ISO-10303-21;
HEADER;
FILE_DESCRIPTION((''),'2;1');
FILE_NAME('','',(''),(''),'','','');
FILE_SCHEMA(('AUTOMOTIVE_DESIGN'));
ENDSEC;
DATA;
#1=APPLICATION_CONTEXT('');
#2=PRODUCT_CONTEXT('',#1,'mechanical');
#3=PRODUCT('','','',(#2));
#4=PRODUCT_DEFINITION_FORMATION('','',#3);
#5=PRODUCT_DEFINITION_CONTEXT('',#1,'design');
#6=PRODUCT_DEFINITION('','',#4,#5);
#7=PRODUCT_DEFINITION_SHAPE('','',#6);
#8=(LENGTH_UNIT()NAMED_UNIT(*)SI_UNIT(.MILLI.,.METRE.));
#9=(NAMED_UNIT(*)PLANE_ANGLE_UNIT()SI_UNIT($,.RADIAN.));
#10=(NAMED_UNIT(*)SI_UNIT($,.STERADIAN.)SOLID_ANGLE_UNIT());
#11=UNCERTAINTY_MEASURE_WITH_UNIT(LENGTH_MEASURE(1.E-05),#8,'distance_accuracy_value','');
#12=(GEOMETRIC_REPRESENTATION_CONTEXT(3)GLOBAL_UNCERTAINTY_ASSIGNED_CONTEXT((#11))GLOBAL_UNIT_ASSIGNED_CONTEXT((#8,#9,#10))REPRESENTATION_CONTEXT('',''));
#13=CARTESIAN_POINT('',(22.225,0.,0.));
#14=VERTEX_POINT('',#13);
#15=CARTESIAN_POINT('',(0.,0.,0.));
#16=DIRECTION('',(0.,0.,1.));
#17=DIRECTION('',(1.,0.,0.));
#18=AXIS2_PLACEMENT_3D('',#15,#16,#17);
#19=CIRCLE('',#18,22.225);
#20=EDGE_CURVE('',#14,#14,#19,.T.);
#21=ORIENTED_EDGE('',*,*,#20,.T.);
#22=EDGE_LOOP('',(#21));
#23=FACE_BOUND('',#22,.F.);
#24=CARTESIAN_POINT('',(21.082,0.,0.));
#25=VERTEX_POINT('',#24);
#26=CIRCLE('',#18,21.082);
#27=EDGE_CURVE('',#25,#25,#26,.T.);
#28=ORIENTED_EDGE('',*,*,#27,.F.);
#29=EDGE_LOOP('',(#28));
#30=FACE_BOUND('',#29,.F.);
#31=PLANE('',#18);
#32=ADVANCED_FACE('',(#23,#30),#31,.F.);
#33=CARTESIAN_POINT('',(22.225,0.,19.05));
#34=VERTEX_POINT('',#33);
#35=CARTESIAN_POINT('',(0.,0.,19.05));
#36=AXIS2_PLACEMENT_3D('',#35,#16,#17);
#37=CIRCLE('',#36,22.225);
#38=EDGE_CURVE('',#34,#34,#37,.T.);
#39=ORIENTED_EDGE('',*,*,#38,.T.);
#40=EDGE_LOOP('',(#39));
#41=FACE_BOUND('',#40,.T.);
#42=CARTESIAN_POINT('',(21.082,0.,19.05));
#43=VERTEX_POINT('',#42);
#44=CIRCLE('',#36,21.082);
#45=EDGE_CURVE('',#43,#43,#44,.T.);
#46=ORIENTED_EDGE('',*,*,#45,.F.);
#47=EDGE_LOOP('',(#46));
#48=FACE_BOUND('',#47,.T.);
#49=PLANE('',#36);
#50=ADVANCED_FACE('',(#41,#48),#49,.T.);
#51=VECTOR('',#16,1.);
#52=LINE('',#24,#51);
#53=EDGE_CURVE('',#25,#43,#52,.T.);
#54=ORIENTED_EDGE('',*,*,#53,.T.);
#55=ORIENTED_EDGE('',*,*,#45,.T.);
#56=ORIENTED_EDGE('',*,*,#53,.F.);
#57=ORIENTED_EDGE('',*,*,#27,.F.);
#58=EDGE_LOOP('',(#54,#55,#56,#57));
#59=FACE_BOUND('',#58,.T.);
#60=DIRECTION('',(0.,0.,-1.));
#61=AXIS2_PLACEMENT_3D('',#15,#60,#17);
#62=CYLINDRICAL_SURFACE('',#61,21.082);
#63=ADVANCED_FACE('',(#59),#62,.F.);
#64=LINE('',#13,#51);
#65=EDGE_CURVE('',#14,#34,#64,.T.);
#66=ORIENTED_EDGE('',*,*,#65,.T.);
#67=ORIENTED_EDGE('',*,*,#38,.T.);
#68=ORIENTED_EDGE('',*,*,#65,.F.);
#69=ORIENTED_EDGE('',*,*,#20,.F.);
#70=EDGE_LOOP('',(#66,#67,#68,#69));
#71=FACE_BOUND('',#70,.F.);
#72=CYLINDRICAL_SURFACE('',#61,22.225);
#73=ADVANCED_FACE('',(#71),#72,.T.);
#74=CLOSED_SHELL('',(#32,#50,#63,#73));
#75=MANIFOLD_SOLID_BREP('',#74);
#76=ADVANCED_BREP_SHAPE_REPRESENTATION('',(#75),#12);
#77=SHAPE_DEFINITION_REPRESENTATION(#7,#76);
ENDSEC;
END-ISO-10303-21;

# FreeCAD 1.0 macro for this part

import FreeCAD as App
import Part
import Sketcher

V = App.Vector
Q = App.Units.Quantity

doc = App.newDocument("Part")
body = doc.addObject("PartDesign::Body", "Body")

# Sketch on XY plane
sketch1 = body.newObject("Sketcher::SketchObject", "Sketch")
sketch1.AttachmentSupport = (doc.getObject("XY_Plane"), [""])
sketch1.MapMode = "FlatFace"
sketch1.addGeometry([
    Part.Circle(V(0, 0, 0), V(0, 0, 1), 22),
    Part.Circle(V(0, 0, 0), V(0, 0, 1), 21),
], False)
sketch1.addConstraint([
    Sketcher.Constraint("Coincident", 0, 3, -1, 1),
    Sketcher.Constraint("Coincident", 1, 3, -1, 1),
    Sketcher.Constraint("Diameter", 0, Q("1.75 in")),
    Sketcher.Constraint("Diameter", 1, Q("1.66 in")),
])
pad1 = body.newObject("PartDesign::Pad", "Pad")
pad1.Profile = sketch1
pad1.Length = Q("0.75 in")

doc.recompute()
